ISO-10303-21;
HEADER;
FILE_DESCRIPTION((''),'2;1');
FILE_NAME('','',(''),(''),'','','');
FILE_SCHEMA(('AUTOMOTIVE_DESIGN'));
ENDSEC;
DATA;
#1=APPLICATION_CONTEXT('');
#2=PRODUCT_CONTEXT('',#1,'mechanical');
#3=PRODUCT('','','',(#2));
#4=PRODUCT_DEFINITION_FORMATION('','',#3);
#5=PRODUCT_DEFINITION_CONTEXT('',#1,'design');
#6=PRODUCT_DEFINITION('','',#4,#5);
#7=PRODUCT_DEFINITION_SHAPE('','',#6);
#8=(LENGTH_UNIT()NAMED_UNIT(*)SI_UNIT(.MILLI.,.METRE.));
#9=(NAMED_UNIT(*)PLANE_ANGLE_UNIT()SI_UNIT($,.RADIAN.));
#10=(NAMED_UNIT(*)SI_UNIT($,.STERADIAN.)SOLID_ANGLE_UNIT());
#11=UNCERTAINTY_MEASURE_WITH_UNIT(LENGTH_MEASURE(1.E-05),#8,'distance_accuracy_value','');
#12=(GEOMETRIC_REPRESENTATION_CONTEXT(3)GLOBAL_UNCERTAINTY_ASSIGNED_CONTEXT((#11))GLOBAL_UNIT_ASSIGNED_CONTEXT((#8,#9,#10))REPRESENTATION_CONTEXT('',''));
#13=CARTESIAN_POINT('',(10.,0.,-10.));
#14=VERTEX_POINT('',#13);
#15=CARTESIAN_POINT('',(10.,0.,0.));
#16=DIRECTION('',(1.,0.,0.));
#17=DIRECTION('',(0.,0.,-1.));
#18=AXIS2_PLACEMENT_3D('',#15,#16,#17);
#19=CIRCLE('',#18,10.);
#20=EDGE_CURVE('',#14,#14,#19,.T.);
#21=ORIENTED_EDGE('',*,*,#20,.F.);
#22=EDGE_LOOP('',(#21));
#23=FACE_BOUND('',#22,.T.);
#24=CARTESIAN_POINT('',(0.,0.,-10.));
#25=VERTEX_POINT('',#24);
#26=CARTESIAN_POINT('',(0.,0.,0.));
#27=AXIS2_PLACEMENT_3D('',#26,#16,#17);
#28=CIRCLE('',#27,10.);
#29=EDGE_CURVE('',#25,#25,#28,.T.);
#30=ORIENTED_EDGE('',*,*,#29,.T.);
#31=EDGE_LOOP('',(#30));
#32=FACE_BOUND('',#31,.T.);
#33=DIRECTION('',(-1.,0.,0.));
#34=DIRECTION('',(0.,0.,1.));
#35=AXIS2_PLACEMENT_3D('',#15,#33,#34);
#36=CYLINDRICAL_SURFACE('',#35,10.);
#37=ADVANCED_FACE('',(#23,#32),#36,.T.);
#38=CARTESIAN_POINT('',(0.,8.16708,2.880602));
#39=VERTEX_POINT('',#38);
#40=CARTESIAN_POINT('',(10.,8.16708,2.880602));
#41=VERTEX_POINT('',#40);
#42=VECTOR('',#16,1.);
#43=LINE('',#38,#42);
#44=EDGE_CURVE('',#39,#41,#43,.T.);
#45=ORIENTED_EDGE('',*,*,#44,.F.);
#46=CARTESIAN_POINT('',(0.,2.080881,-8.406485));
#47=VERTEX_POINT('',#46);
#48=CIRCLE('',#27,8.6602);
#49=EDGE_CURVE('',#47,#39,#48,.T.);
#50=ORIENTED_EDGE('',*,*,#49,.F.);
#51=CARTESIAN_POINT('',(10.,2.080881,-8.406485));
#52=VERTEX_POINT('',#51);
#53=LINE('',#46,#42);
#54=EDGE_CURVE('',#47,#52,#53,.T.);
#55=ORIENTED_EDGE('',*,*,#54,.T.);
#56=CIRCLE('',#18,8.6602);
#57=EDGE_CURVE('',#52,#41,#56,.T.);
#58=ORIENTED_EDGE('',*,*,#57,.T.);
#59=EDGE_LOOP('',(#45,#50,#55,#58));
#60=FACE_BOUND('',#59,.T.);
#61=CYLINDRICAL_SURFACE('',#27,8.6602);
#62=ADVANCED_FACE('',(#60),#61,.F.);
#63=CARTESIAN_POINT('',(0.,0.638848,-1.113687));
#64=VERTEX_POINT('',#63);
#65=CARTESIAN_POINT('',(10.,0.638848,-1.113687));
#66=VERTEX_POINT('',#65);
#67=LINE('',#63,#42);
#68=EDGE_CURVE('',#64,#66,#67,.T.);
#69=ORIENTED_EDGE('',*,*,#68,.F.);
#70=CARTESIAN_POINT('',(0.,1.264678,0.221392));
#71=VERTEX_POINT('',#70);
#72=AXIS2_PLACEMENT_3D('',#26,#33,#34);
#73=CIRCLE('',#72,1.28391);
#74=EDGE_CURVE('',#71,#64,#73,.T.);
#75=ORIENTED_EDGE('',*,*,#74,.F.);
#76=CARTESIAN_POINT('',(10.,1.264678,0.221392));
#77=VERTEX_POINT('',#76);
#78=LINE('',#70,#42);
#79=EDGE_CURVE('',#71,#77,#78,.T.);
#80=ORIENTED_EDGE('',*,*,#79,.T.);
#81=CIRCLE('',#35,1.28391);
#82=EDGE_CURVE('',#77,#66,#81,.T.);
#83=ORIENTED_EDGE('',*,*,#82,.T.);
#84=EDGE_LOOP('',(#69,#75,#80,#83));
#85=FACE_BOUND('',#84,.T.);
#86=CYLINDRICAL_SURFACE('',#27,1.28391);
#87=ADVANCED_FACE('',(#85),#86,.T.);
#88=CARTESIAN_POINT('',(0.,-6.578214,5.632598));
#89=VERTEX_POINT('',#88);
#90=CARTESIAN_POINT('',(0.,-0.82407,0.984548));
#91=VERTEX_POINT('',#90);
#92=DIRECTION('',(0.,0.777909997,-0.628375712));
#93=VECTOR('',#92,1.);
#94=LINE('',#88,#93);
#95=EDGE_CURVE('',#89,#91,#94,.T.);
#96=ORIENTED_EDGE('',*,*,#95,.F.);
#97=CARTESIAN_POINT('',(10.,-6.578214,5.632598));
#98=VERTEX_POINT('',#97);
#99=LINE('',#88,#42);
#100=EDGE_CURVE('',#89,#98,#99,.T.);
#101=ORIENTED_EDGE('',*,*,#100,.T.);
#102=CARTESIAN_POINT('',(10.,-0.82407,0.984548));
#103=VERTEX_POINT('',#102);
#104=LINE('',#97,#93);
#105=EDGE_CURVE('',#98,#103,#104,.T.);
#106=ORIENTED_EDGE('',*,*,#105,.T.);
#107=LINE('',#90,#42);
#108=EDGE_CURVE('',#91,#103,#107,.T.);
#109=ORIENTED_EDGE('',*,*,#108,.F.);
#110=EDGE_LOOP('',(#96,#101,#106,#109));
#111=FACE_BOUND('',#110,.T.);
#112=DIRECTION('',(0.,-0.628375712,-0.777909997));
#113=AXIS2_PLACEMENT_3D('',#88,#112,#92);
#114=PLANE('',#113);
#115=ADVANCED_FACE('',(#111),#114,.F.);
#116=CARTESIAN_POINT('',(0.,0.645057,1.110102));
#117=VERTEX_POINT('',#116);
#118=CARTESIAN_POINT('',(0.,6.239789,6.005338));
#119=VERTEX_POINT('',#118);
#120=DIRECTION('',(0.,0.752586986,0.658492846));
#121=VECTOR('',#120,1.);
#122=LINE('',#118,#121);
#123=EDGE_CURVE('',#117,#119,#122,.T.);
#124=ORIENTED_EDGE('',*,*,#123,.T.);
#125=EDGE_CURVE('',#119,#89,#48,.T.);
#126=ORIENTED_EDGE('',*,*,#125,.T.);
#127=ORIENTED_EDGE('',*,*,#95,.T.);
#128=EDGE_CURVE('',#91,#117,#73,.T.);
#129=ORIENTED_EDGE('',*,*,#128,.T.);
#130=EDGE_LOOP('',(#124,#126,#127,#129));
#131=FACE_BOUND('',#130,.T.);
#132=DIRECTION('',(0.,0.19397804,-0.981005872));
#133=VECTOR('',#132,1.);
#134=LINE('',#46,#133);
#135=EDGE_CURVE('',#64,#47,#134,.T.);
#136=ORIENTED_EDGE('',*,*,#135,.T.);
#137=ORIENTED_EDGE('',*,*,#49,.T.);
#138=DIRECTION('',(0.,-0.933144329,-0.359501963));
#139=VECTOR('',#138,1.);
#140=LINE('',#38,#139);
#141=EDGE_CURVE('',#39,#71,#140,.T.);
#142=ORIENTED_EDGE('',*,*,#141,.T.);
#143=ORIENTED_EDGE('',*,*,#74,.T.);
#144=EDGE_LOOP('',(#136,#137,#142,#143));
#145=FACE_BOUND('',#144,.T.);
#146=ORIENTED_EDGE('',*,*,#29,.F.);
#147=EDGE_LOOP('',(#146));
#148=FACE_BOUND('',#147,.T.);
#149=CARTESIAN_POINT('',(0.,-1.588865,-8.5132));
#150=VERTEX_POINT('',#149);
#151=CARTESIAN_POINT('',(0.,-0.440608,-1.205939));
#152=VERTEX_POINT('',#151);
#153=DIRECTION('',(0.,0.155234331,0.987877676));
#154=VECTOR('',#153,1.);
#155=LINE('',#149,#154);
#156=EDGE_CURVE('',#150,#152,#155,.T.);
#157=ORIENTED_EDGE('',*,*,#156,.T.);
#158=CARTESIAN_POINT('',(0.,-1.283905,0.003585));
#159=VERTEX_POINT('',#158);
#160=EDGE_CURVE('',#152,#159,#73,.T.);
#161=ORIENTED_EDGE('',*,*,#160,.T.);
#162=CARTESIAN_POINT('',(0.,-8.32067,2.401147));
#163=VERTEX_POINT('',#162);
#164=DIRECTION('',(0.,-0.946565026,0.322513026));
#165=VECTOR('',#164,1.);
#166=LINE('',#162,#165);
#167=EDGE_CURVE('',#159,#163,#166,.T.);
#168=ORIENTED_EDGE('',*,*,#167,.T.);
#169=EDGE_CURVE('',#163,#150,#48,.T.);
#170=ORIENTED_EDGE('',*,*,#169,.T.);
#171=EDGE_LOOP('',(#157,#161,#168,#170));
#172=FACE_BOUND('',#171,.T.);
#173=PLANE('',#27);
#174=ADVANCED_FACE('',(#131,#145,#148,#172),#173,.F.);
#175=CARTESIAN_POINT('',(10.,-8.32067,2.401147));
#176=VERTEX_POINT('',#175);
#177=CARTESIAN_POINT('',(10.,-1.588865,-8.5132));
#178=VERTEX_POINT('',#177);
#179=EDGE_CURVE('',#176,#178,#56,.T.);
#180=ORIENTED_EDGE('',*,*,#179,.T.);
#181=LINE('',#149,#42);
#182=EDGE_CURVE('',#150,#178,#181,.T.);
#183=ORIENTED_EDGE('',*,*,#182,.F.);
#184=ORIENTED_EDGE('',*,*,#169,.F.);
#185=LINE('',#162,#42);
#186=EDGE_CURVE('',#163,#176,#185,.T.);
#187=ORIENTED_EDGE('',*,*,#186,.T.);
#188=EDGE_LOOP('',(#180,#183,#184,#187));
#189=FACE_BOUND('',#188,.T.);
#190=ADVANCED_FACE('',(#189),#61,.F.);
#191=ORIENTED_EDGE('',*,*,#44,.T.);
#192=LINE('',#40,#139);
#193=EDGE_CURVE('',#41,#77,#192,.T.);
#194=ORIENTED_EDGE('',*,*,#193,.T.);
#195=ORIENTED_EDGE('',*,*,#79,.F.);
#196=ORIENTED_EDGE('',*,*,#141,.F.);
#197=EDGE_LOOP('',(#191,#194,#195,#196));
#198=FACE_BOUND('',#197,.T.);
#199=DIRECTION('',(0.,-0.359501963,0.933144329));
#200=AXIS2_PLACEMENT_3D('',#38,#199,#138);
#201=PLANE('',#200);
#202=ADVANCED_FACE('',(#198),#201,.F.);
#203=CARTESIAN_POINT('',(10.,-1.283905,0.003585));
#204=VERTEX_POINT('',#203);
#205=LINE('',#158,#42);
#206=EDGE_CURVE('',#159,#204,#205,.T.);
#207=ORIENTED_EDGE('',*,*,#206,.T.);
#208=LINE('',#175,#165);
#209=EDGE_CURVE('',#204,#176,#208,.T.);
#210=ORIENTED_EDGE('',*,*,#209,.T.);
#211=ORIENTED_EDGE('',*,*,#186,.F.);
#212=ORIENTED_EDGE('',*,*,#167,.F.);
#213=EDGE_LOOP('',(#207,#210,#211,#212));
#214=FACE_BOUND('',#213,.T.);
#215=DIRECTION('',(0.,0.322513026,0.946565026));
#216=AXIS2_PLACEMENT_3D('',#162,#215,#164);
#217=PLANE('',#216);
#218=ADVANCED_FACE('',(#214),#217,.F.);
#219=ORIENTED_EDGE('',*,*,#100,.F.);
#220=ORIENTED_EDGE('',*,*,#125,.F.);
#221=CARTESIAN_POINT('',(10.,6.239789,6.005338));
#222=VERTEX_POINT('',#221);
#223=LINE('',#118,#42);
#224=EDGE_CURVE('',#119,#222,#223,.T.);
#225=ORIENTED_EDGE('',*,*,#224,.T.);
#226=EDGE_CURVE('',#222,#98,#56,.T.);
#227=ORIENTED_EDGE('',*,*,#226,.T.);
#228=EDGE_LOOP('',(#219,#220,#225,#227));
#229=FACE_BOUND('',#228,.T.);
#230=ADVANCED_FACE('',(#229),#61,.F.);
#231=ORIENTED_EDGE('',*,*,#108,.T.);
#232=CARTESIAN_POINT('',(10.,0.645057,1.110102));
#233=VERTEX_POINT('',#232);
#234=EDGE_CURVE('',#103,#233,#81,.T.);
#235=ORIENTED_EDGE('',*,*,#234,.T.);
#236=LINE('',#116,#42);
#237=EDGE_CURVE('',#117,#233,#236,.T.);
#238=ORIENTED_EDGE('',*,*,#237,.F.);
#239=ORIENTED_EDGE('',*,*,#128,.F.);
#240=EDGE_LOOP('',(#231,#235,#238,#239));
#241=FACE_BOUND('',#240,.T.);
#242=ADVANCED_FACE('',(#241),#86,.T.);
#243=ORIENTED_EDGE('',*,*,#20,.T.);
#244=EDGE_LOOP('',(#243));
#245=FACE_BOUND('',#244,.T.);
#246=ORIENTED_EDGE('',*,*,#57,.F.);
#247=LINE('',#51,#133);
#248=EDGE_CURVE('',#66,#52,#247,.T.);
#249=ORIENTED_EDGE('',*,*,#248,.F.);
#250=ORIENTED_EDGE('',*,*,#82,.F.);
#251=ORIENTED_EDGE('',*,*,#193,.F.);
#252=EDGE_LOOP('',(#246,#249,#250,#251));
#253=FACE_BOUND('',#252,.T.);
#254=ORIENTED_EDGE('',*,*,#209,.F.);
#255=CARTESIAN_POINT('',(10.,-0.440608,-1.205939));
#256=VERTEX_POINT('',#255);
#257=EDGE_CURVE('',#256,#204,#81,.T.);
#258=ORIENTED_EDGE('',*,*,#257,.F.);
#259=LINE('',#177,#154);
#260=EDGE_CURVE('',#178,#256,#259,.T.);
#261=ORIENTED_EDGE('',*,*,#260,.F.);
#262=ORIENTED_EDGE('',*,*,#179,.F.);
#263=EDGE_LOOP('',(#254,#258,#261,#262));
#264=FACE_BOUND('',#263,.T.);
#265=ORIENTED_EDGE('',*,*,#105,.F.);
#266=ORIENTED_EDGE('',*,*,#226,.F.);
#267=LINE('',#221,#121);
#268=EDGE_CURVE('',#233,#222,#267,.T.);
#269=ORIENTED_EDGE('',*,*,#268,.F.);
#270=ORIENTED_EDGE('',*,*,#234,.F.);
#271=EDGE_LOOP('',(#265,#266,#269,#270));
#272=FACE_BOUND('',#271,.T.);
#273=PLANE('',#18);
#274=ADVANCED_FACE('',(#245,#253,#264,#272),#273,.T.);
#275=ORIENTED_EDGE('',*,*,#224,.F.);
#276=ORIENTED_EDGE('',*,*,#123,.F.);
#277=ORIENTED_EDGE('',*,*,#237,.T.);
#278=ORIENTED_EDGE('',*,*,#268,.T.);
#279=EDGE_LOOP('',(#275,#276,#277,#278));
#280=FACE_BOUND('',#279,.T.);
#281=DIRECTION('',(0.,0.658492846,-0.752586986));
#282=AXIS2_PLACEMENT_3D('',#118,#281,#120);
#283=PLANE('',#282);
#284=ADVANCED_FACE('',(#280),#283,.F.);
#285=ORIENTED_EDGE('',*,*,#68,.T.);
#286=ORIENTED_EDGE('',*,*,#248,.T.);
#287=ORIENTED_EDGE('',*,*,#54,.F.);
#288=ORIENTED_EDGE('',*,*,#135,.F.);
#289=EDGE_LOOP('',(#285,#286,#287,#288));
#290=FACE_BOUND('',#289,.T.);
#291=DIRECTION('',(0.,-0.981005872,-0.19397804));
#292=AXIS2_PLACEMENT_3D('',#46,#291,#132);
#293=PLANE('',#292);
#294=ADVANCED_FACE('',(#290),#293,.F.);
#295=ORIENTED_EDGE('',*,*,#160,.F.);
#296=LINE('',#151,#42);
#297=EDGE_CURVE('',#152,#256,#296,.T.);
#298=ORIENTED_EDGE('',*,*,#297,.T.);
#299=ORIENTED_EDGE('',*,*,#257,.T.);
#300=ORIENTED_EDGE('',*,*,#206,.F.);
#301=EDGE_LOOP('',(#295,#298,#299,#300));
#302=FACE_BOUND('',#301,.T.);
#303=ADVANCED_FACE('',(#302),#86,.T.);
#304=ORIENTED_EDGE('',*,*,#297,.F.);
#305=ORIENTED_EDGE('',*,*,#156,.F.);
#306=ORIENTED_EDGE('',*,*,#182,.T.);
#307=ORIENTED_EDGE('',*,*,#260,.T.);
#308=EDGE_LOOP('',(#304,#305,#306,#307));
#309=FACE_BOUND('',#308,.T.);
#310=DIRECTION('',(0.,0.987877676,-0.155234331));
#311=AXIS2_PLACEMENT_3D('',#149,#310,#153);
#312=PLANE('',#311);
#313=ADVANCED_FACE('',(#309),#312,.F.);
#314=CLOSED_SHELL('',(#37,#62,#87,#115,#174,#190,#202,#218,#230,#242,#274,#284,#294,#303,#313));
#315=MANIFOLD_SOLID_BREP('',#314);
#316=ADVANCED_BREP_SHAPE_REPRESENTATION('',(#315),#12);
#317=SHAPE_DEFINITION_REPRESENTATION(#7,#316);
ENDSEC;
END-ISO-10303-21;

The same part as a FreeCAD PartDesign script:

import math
import FreeCAD as App
import Part
import Sketcher
from FreeCAD import Vector
Q = App.Units.Quantity

doc = App.newDocument("Part")
params = doc.addObject("Spreadsheet::Sheet", "Params")
for row, (alias, value) in enumerate([
    ("sketch1_diameter", "20 mm"),
    ("pad1_length", "10 mm"),
], start=1):
    params.set(f"A{row}", alias)
    params.set(f"B{row}", "=" + value)
    params.setAlias(f"B{row}", alias)

body = doc.addObject("PartDesign::Body", "Body")

# Sketch on YZ plane
sketch1 = body.newObject("Sketcher::SketchObject", "Sketch")
sketch1.AttachmentSupport = (doc.getObject("YZ_Plane"), [""])
sketch1.MapMode = "FlatFace"
sketch1.addGeometry(Part.Circle(Vector(0, 0, 0), Vector(0, 0, 1), 10), False)
sketch1.addConstraint([
    Sketcher.Constraint("Coincident", 0, 3, -1, 1),
    Sketcher.Constraint("Diameter", 0, Q("20 mm")),
])
sketch1.setExpression("Constraints[1]", "Params.sketch1_diameter")
pad1 = body.newObject("PartDesign::Pad", "Pad")
pad1.Profile = sketch1
pad1.setExpression("Length", "Params.pad1_length")

# Sketch on YZ plane
sketch2 = body.newObject("Sketcher::SketchObject", "Sketch001")
sketch2.AttachmentSupport = (doc.getObject("YZ_Plane"), [""])
sketch2.MapMode = "FlatFace"
sketch2.AttachmentOffset = App.Placement(Vector(0, 0, 10), App.Rotation())
sketch2.addGeometry([
    Part.LineSegment(Vector(0.645057, 1.110102, 0), Vector(6.239789, 6.005338, 0)),  # 0
    Part.ArcOfCircle(Part.Circle(Vector(0, 0, 0), Vector(0, 0, 1), 8.6602), math.radians(43.903122), math.radians(139.428201)),  # 1
    Part.LineSegment(Vector(-6.578214, 5.632598, 0), Vector(-0.82407, 0.984548, 0)),  # 2
    Part.ArcOfCircle(Part.Circle(Vector(0, 0, 0), Vector(0, 0, 1), 1.28391), math.radians(59.840022), math.radians(129.92946)),  # 3
    Part.LineSegment(Vector(0.638848, -1.113687, 0), Vector(2.080881, -8.406485, 0)),  # 4
    Part.ArcOfCircle(Part.Circle(Vector(0, 0, 0), Vector(0, 0, 1), 8.6602), math.radians(-76.096878), math.radians(19.428201)),  # 5
    Part.LineSegment(Vector(8.16708, 2.880602, 0), Vector(1.264678, 0.221392, 0)),  # 6
    Part.ArcOfCircle(Part.Circle(Vector(0, 0, 0), Vector(0, 0, 1), 1.28391), math.radians(-60.159978), math.radians(9.92946)),  # 7
    Part.LineSegment(Vector(-1.283905, 0.003585, 0), Vector(-8.32067, 2.401147, 0)),  # 8
    Part.ArcOfCircle(Part.Circle(Vector(0, 0, 0), Vector(0, 0, 1), 8.6602), math.radians(163.903122), math.radians(259.428201)),  # 9
    Part.LineSegment(Vector(-1.588865, -8.5132, 0), Vector(-0.440608, -1.205939, 0)),  # 10
    Part.ArcOfCircle(Part.Circle(Vector(0, 0, 0), Vector(0, 0, 1), 1.28391), math.radians(179.840022), math.radians(249.92946)),  # 11
], False)
sketch2.addConstraint([
    Sketcher.Constraint("Coincident", 0, 2, 1, 1),
    Sketcher.Constraint("Coincident", 1, 2, 2, 1),
    Sketcher.Constraint("Coincident", 2, 2, 3, 2),
    Sketcher.Constraint("Coincident", 3, 1, 0, 1),
    Sketcher.Constraint("Coincident", 4, 2, 5, 1),
    Sketcher.Constraint("Coincident", 5, 2, 6, 1),
    Sketcher.Constraint("Coincident", 6, 2, 7, 2),
    Sketcher.Constraint("Coincident", 7, 1, 4, 1),
    Sketcher.Constraint("Coincident", 8, 2, 9, 1),
    Sketcher.Constraint("Coincident", 9, 2, 10, 1),
    Sketcher.Constraint("Coincident", 10, 2, 11, 2),
    Sketcher.Constraint("Coincident", 11, 1, 8, 1),
    Sketcher.Constraint("Coincident", 1, 3, -1, 1),
    Sketcher.Constraint("Coincident", 3, 3, -1, 1),
    Sketcher.Constraint("Coincident", 5, 3, -1, 1),
    Sketcher.Constraint("Coincident", 7, 3, -1, 1),
    Sketcher.Constraint("Coincident", 9, 3, -1, 1),
    Sketcher.Constraint("Coincident", 11, 3, -1, 1),
    Sketcher.Constraint("Equal", 1, 5),
    Sketcher.Constraint("Equal", 3, 7),
    Sketcher.Constraint("Equal", 5, 9),
    Sketcher.Constraint("Equal", 7, 11),
    Sketcher.Constraint("Equal", 0, 4),
    Sketcher.Constraint("Equal", 2, 6),
    Sketcher.Constraint("Equal", 4, 8),
    Sketcher.Constraint("Equal", 6, 10),
    Sketcher.Constraint("Radius", 1, Q("8.6602 mm")),
    Sketcher.Constraint("Radius", 3, Q("1.28391 mm")),
    Sketcher.Constraint("Distance", 0, Q("7.434001 mm")),
    Sketcher.Constraint("DistanceY", -1, 1, 5, 2, Q("2.880602 mm")),
    Sketcher.Constraint("DistanceY", 9, 2, -1, 1, Q("8.5132 mm")),
    Sketcher.Constraint("DistanceY", 3, 1, 5, 2, Q("1.7705 mm")),
    Sketcher.Constraint("DistanceX", 8, 2, 2, 2, Q("7.4966 mm")),
    Sketcher.Constraint("DistanceY", 2, 2, 8, 2, Q("1.416599 mm")),
    Sketcher.Constraint("Distance", 2, Q("7.396928 mm")),
    Sketcher.Constraint("DistanceX", -1, 1, 4, 2, Q("2.080881 mm")),
])
pocket1 = body.newObject("PartDesign::Pocket", "Pocket")
pocket1.Profile = sketch2
pocket1.Type = "ThroughAll"
pocket1.Midplane = True

doc.recompute()
